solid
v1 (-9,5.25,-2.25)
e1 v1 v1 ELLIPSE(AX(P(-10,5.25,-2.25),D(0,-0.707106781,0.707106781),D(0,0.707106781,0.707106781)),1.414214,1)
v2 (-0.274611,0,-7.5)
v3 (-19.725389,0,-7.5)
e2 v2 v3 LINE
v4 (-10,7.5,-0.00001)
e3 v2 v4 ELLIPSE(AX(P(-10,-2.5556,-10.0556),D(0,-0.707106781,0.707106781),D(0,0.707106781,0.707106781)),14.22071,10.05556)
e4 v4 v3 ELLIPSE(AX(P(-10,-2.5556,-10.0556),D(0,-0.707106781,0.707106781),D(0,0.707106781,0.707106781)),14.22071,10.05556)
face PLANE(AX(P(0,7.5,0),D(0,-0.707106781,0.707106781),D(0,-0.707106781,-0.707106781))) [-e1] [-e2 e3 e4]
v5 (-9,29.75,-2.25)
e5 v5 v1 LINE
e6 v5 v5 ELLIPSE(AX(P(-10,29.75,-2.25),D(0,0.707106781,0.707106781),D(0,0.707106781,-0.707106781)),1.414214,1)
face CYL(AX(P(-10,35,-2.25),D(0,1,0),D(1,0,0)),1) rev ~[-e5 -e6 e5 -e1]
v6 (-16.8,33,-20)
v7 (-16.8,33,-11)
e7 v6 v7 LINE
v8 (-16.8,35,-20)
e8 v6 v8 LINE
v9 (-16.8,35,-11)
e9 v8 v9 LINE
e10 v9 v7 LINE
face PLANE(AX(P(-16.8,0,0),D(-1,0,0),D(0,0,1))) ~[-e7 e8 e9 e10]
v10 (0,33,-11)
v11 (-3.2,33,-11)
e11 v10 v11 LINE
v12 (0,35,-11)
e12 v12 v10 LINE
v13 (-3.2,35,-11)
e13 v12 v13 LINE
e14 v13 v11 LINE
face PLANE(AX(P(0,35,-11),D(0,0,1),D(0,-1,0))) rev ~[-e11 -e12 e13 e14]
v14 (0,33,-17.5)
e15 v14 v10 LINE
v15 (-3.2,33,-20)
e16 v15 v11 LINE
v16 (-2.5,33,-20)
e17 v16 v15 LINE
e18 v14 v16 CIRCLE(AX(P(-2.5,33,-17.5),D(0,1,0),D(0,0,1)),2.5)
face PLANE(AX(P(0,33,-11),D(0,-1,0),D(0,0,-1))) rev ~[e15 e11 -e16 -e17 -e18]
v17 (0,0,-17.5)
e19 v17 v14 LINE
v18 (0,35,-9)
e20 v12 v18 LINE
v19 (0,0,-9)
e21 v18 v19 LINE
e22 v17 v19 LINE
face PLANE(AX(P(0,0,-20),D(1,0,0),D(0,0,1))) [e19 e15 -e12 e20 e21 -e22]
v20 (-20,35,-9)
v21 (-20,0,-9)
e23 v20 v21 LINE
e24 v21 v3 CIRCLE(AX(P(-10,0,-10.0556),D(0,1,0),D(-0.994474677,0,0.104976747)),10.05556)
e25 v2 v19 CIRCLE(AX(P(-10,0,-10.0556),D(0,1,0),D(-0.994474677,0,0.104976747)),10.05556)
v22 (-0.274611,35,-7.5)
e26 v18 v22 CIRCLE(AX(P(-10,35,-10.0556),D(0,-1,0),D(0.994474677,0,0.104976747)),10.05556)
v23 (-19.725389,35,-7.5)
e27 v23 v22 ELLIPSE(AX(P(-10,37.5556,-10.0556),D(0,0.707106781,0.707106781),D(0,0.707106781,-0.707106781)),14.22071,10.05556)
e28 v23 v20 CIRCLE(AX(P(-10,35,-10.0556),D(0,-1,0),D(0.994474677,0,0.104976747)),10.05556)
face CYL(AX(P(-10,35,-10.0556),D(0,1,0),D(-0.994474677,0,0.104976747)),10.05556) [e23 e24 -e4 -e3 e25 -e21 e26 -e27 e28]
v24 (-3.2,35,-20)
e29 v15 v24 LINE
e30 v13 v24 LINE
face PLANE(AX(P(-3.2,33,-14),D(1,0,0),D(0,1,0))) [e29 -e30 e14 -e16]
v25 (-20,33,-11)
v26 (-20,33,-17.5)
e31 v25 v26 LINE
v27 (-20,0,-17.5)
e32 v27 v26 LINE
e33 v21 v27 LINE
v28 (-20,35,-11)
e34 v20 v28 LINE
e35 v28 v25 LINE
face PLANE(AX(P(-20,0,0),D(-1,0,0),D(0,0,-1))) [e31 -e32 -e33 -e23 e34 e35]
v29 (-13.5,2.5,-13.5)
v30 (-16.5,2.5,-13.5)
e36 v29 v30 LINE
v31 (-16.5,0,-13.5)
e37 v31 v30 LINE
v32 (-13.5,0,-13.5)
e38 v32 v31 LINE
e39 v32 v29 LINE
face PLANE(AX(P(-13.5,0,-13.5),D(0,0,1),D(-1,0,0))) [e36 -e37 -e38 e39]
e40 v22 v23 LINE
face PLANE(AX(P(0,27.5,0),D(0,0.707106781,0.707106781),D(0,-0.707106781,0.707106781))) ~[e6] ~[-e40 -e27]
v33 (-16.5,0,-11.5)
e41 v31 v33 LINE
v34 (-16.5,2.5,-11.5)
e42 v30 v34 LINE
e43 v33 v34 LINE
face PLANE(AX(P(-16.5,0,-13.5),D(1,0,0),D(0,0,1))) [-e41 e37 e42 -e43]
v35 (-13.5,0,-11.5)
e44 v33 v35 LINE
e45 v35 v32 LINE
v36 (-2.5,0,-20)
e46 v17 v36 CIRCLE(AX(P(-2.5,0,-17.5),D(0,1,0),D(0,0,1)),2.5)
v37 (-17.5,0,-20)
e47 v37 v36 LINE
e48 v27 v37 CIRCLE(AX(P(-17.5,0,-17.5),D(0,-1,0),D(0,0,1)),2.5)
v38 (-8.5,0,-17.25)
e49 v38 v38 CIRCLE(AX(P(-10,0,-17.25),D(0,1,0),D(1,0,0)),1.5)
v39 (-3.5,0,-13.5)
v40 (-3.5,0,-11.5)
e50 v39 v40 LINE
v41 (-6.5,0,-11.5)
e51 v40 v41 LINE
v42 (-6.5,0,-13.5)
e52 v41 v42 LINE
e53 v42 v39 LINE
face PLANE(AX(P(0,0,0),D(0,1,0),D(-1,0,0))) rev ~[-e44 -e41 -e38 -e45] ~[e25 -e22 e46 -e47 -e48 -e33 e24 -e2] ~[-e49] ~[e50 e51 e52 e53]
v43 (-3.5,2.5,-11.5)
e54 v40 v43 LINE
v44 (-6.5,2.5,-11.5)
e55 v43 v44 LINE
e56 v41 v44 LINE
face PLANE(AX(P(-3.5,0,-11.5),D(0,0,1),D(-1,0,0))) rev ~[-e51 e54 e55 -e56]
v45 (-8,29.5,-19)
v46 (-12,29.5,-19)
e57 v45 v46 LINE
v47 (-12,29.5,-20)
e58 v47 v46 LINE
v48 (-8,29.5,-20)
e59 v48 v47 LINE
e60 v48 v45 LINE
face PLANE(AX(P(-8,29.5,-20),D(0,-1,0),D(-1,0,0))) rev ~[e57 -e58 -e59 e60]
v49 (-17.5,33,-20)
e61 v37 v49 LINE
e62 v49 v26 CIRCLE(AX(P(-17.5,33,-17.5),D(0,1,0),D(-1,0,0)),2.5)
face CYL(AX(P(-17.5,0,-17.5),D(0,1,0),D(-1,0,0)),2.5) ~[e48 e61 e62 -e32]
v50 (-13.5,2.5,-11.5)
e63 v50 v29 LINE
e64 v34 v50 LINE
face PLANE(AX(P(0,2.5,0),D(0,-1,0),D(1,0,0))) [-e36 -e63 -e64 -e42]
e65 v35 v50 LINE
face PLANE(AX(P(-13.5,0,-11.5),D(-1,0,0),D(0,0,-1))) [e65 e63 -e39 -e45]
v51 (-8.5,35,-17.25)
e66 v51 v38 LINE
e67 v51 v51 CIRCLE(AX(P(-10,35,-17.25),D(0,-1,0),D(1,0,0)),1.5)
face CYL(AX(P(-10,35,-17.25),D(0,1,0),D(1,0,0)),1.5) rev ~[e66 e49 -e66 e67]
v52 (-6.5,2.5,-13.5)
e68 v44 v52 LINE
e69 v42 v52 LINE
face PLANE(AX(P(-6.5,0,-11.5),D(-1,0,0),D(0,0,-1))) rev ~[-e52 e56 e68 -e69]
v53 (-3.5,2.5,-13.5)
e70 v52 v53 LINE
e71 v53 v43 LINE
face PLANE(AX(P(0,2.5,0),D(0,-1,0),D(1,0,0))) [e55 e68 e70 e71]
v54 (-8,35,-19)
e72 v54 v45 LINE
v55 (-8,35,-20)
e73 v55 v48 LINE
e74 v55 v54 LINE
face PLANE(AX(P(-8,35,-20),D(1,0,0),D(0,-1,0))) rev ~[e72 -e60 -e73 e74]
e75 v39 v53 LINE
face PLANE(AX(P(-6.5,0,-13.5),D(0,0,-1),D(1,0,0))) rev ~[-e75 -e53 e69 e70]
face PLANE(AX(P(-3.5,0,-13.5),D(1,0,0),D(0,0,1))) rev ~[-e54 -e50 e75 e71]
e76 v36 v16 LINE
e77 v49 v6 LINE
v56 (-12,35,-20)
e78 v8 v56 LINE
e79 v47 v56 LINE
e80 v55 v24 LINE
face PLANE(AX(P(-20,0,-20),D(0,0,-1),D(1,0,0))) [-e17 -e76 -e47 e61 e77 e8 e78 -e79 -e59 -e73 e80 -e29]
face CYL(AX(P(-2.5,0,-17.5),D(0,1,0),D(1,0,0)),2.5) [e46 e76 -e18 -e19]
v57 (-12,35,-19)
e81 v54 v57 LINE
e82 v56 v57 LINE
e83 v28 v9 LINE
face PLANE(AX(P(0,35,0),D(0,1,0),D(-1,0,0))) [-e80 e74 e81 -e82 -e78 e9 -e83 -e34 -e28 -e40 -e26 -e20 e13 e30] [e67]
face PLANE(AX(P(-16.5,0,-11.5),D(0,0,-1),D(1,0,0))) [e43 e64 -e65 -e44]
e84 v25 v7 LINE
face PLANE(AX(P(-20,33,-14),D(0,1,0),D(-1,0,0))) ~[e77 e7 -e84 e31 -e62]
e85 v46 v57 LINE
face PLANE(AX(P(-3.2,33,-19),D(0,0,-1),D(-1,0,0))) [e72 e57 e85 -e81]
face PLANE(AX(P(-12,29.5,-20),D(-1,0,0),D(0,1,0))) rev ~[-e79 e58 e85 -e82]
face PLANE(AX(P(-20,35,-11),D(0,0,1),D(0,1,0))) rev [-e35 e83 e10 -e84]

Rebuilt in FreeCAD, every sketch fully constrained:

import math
import FreeCAD as App
import Part
import Sketcher
from FreeCAD import Vector


def edges_at(feature, points):
    """Names of the edges that pass closest to the given points."""
    edges = feature.Shape.Edges
    near = lambda p: min(range(len(edges)), key=lambda i: edges[i].distToShape(Part.Vertex(*p))[0])
    return sorted({f"Edge{near(p) + 1}" for p in points})


def add_polygon(sketch, points):
    """Adds a closed chain of lines whose ends are joined by coincident constraints."""
    first, n = sketch.GeometryCount, len(points)
    for a, b in zip(points, points[1:] + points[:1]):
        sketch.addGeometry(Part.LineSegment(App.Vector(*a, 0), App.Vector(*b, 0)), False)
    for i in range(n):
        sketch.addConstraint(Sketcher.Constraint("Coincident", first + i, 2, first + (i + 1) % n, 1))

doc = App.newDocument("Part")
body = doc.addObject("PartDesign::Body", "Body")

# Sketch on XZ plane
sketch1 = body.newObject("Sketcher::SketchObject", "Sketch")
sketch1.AttachmentSupport = (doc.getObject("XZ_Plane"), [""])
sketch1.MapMode = "FlatFace"
add_polygon(sketch1, [(-20, 0), (0, 0), (0, -20), (-20, -20)])  # lines 0-3
sketch1.addConstraint([
    Sketcher.Constraint("Horizontal", 0),
    Sketcher.Constraint("Vertical", 1),
    Sketcher.Constraint("Horizontal", 2),
    Sketcher.Constraint("Vertical", 3),
    Sketcher.Constraint("Coincident", 0, 2, -1, 1),
    Sketcher.Constraint("Equal", 2, 1),
    Sketcher.Constraint("DistanceX", 0, 1, 0, 2, 20.0),
])
pad1 = body.newObject("PartDesign::Pad", "Pad")
pad1.Profile = sketch1
pad1.Length = 35
pad1.Reversed = True

# Sketch on YZ plane
sketch2 = body.newObject("Sketcher::SketchObject", "Sketch001")
sketch2.AttachmentSupport = (doc.getObject("YZ_Plane"), [""])
sketch2.MapMode = "FlatFace"
add_polygon(sketch2, [(35, -14), (35, -11), (33, -11), (33, -14)])  # lines 0-3
sketch2.addConstraint([
    Sketcher.Constraint("Vertical", 0),
    Sketcher.Constraint("Horizontal", 1),
    Sketcher.Constraint("Vertical", 2),
    Sketcher.Constraint("Horizontal", 3),
    Sketcher.Constraint("DistanceX", 1, 2, 1, 1, 2.0),
    Sketcher.Constraint("DistanceY", 0, 1, 0, 2, 3.0),
    Sketcher.Constraint("DistanceX", -1, 1, 0, 2, 35.0),
    Sketcher.Constraint("DistanceY", 0, 2, -1, 1, 11.0),
])
pocket1 = body.newObject("PartDesign::Pocket", "Pocket")
pocket1.Profile = sketch2
pocket1.Length = 3.2

# Sketch on XY plane
sketch3 = body.newObject("Sketcher::SketchObject", "Sketch002")
sketch3.AttachmentSupport = (doc.getObject("XY_Plane"), [""])
sketch3.MapMode = "FlatFace"
sketch3.AttachmentOffset = App.Placement(Vector(0, 0, -14), App.Rotation())
add_polygon(sketch3, [(-3.2, 33), (0, 33), (0, 35), (-3.2, 35)])  # lines 0-3
sketch3.addConstraint([
    Sketcher.Constraint("Horizontal", 0),
    Sketcher.Constraint("Vertical", 1),
    Sketcher.Constraint("Horizontal", 2),
    Sketcher.Constraint("Vertical", 3),
    Sketcher.Constraint("PointOnObject", 0, 2, -2),
    Sketcher.Constraint("DistanceY", 1, 1, 1, 2, 2.0),
    Sketcher.Constraint("DistanceX", 0, 1, 0, 2, 3.2),
    Sketcher.Constraint("DistanceY", -1, 1, 0, 2, 33.0),
])
pocket2 = body.newObject("PartDesign::Pocket", "Pocket001")
pocket2.Profile = sketch3
pocket2.Length = 6

# Sketch on XZ plane
sketch4 = body.newObject("Sketcher::SketchObject", "Sketch003")
sketch4.AttachmentSupport = (doc.getObject("XZ_Plane"), [""])
sketch4.MapMode = "FlatFace"
add_polygon(sketch4, [(-6.5, -13.5), (-3.5, -13.5), (-3.5, -11.5), (-6.5, -11.5)])  # lines 0-3
add_polygon(sketch4, [(-16.5, -11.5), (-16.5, -13.5), (-13.5, -13.5), (-13.5, -11.5)])  # lines 4-7
sketch4.addConstraint([
    Sketcher.Constraint("Horizontal", 0),
    Sketcher.Constraint("Vertical", 1),
    Sketcher.Constraint("Horizontal", 2),
    Sketcher.Constraint("Vertical", 3),
    Sketcher.Constraint("Vertical", 4),
    Sketcher.Constraint("Horizontal", 5),
    Sketcher.Constraint("Vertical", 6),
    Sketcher.Constraint("Horizontal", 7),
    Sketcher.Constraint("Horizontal", 3, 2, 4, 2),
    Sketcher.Constraint("Horizontal", 2, 2, 6, 2),
    Sketcher.Constraint("Equal", 2, 5),
    Sketcher.Constraint("DistanceX", 0, 1, 0, 2, 3.0),
    Sketcher.Constraint("DistanceY", 1, 1, 1, 2, 2.0),
    Sketcher.Constraint("DistanceX", 0, 2, -1, 1, 3.5),
    Sketcher.Constraint("DistanceX", 4, 2, 3, 2, 10.0),
    Sketcher.Constraint("DistanceY", 0, 2, -1, 1, 13.5),
])
pocket3 = body.newObject("PartDesign::Pocket", "Pocket002")
pocket3.Profile = sketch4
pocket3.Length = 2.5
doc.recompute()

fillet = body.newObject("PartDesign::Fillet", "Fillet")
fillet.Base = (pocket3, edges_at(pocket3, [
    (0, 17.5, 0),
    (-20, 17.5, 0),
    (-20, 17.5, -20),
    (0, 16.5, -20),
]))
fillet.Radius = 2.5

# Sketch on YZ plane
sketch5 = body.newObject("Sketcher::SketchObject", "Sketch004")
sketch5.AttachmentSupport = (doc.getObject("YZ_Plane"), [""])
sketch5.MapMode = "FlatFace"
add_polygon(sketch5, [(8, 0), (0, 0), (0, -8)])  # lines 0-2
sketch5.addConstraint([
    Sketcher.Constraint("Horizontal", 0),
    Sketcher.Constraint("Vertical", 1),
    Sketcher.Constraint("Coincident", 0, 2, -1, 1),
    Sketcher.Constraint("Equal", 0, 1),
    Sketcher.Constraint("DistanceX", 0, 2, 0, 1, 7.5),
])
pocket4 = body.newObject("PartDesign::Pocket", "Pocket003")
pocket4.Profile = sketch5
pocket4.Length = 20

# Sketch on XZ plane
sketch6 = body.newObject("Sketcher::SketchObject", "Sketch005")
sketch6.AttachmentSupport = (doc.getObject("XZ_Plane"), [""])
sketch6.MapMode = "FlatFace"
sketch6.AttachmentOffset = App.Placement(Vector(0, 0, -35), App.Rotation())
sketch6.addGeometry([
    Part.Circle(Vector(-10, -2.2, 0), Vector(0, 0, 1), 1),
    Part.Circle(Vector(-10, -17.2, 0), Vector(0, 0, 1), 1.5),
], False)
sketch6.addConstraint([
    Sketcher.Constraint("Vertical", 0, 3, 1, 3),
    Sketcher.Constraint("Diameter", 0, 2.0),
    Sketcher.Constraint("Diameter", 1, 3.0),
    Sketcher.Constraint("DistanceX", 0, 3, -1, 1, 10.0),
    Sketcher.Constraint("DistanceY", 1, 3, 0, 3, 15.0),
    Sketcher.Constraint("DistanceY", 0, 3, -1, 1, 2.25),
])
pocket5 = body.newObject("PartDesign::Pocket", "Pocket004")
pocket5.Profile = sketch6
pocket5.Length = 35
pocket5.Reversed = True

# Sketch on XZ plane
sketch7 = body.newObject("Sketcher::SketchObject", "Sketch006")
sketch7.AttachmentSupport = (doc.getObject("XZ_Plane"), [""])
sketch7.MapMode = "FlatFace"
sketch7.AttachmentOffset = App.Placement(Vector(0, 0, -35), App.Rotation())
sketch7.addGeometry([
    Part.LineSegment(Vector(0, -2.5, 0), Vector(0, -9, 0)),  # 0
    Part.ArcOfCircle(Part.Circle(Vector(-10, -10.1, 0), Vector(0, 0, 1), 10.1), math.radians(6), math.radians(90)),  # 1
    Part.LineSegment(Vector(-10, 0, 0), Vector(-2.5, 0, 0)),  # 2
    Part.ArcOfCircle(Part.Circle(Vector(-2.5, -2.5, 0), Vector(0, 0, 1), 2.5), math.radians(0), math.radians(90)),  # 3
    Part.ArcOfCircle(Part.Circle(Vector(-10, -10.1, 0), Vector(0, 0, 1), 10.1), math.radians(90), math.radians(174)),  # 4
    Part.LineSegment(Vector(-20, -9, 0), Vector(-20, -2.5, 0)),  # 5
    Part.ArcOfCircle(Part.Circle(Vector(-17.5, -2.5, 0), Vector(0, 0, 1), 2.5), math.radians(90), math.radians(180)),  # 6
    Part.LineSegment(Vector(-17.5, 0, 0), Vector(-10, 0, 0)),  # 7
], False)
sketch7.addConstraint([
    Sketcher.Constraint("Coincident", 0, 2, 1, 1),
    Sketcher.Constraint("Tangent", 1, 2, 2, 1),
    Sketcher.Constraint("Tangent", 2, 2, 3, 2),
    Sketcher.Constraint("Tangent", 3, 1, 0, 1),
    Sketcher.Constraint("Coincident", 4, 2, 5, 1),
    Sketcher.Constraint("Tangent", 5, 2, 6, 2),
    Sketcher.Constraint("Tangent", 6, 1, 7, 1),
    Sketcher.Constraint("Tangent", 7, 2, 4, 1),
    Sketcher.Constraint("Vertical", 0),
    Sketcher.Constraint("Horizontal", 2),
    Sketcher.Constraint("Vertical", 5),
    Sketcher.Constraint("Horizontal", 7),
    Sketcher.Constraint("Coincident", 4, 3, 1, 3),
    Sketcher.Constraint("Equal", 1, 4),
    Sketcher.Constraint("Equal", 3, 6),
    Sketcher.Constraint("PointOnObject", 0, 2, -2),
    Sketcher.Constraint("PointOnObject", 1, 2, -1),
    Sketcher.Constraint("Horizontal", 0, 2, 4, 2),
    Sketcher.Constraint("DistanceX", 6, 3, -1, 1, 17.5),
    Sketcher.Constraint("Radius", 3, 2.5),
    Sketcher.Constraint("DistanceY", 0, 2, 0, 1, 6.5),
])
pocket6 = body.newObject("PartDesign::Pocket", "Pocket005")
pocket6.Profile = sketch7
pocket6.Length = 35
pocket6.Reversed = True
doc.recompute()

datumplane = body.newObject("PartDesign::Plane", "DatumPlane")
datumplane.AttachmentSupport = (doc.getObject("YZ_Plane"), [""])
datumplane.MapMode = "FlatFace"
datumplane.AttachmentOffset = App.Placement(Vector(0, 0, -10), App.Rotation())
mirrored = body.newObject("PartDesign::Mirrored", "Mirrored")
mirrored.Originals = [pocket1, pocket2]
mirrored.MirrorPlane = (datumplane, [""])
body.Tip = mirrored
doc.recompute()

datumplane2 = body.newObject("PartDesign::Plane", "DatumPlane001")
datumplane2.AttachmentSupport = (doc.getObject("XZ_Plane"), [""])
datumplane2.MapMode = "FlatFace"
datumplane2.AttachmentOffset = App.Placement(Vector(0, 0, -17.5), App.Rotation())
mirrored2 = body.newObject("PartDesign::Mirrored", "Mirrored001")
mirrored2.Originals = [pocket4]
mirrored2.MirrorPlane = (datumplane2, [""])
body.Tip = mirrored2

# Sketch on XY plane
sketch8 = body.newObject("Sketcher::SketchObject", "Sketch007")
sketch8.AttachmentSupport = (doc.getObject("XY_Plane"), [""])
sketch8.MapMode = "FlatFace"
sketch8.AttachmentOffset = App.Placement(Vector(0, 0, -20), App.Rotation())
add_polygon(sketch8, [(-12, 35), (-8, 35), (-8, 29.5), (-12, 29.5)])  # lines 0-3
sketch8.addConstraint([
    Sketcher.Constraint("Horizontal", 0),
    Sketcher.Constraint("Vertical", 1),
    Sketcher.Constraint("Horizontal", 2),
    Sketcher.Constraint("Vertical", 3),
    Sketcher.Constraint("DistanceX", 0, 1, 0, 2, 4.0),
    Sketcher.Constraint("DistanceY", 1, 2, 1, 1, 5.5),
    Sketcher.Constraint("DistanceX", 0, 2, -1, 1, 8.0),
    Sketcher.Constraint("DistanceY", -1, 1, 0, 2, 35.0),
])
pocket7 = body.newObject("PartDesign::Pocket", "Pocket006")
pocket7.Profile = sketch8
pocket7.Length = 1
pocket7.Reversed = True

doc.recompute()
